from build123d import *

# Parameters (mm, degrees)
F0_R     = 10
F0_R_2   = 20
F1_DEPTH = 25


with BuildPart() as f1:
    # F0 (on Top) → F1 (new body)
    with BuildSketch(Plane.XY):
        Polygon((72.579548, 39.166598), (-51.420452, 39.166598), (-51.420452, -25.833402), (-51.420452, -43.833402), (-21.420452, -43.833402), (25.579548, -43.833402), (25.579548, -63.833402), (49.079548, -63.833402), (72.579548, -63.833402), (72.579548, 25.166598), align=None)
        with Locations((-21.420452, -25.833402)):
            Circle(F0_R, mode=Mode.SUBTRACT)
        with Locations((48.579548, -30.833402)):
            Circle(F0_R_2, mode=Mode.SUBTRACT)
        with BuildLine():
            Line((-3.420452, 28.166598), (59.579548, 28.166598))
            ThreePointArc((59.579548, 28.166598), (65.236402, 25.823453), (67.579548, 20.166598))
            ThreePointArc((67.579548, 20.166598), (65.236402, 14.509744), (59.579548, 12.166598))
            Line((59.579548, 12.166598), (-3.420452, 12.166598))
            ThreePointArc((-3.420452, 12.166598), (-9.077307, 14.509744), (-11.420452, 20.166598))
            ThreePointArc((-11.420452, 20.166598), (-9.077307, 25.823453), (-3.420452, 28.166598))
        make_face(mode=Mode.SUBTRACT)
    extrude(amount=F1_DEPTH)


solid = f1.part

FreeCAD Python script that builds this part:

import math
import FreeCAD as App
import Part
import Sketcher
from FreeCAD import Vector


def add_polygon(sketch, points):
    """Adds a closed chain of lines whose ends are joined by coincident constraints."""
    first, n = sketch.GeometryCount, len(points)
    for a, b in zip(points, points[1:] + points[:1]):
        sketch.addGeometry(Part.LineSegment(App.Vector(*a, 0), App.Vector(*b, 0)), False)
    for i in range(n):
        sketch.addConstraint(Sketcher.Constraint("Coincident", first + i, 2, first + (i + 1) % n, 1))

doc = App.newDocument("Part")
body = doc.addObject("PartDesign::Body", "Body")

# Sketch on XY plane
sketch1 = doc.addObject("Sketcher::SketchObject", "Sketch")
body.addObject(sketch1)
sketch1.AttachmentSupport = (doc.XY_Plane, [""])
sketch1.MapMode = "FlatFace"
add_polygon(sketch1, [(73, 39), (-51, 39), (-51, -44), (26, -44), (26, -64), (73, -64)])  # lines 0-5
sketch1.addGeometry(Part.Circle(Vector(-21, -26, 0), Vector(0, 0, 1), 10), False)  # 6
sketch1.addGeometry(Part.Circle(Vector(49, -31, 0), Vector(0, 0, 1), 20), False)  # 7
sketch1.addGeometry(Part.ArcOfCircle(Part.Circle(Vector(-3, 20, 0), Vector(0, 0, 1), 8), math.radians(90), math.radians(180)), False)  # 8
sketch1.addGeometry(Part.LineSegment(Vector(-3, 28, 0), Vector(60, 28, 0)), False)  # 9
sketch1.addGeometry(Part.ArcOfCircle(Part.Circle(Vector(60, 20, 0), Vector(0, 0, 1), 8), math.radians(0), math.radians(90)), False)  # 10
sketch1.addGeometry(Part.ArcOfCircle(Part.Circle(Vector(60, 20, 0), Vector(0, 0, 1), 8), math.radians(-90), math.radians(0)), False)  # 11
sketch1.addGeometry(Part.LineSegment(Vector(60, 12, 0), Vector(-3, 12, 0)), False)  # 12
sketch1.addGeometry(Part.ArcOfCircle(Part.Circle(Vector(-3, 20, 0), Vector(0, 0, 1), 8), math.radians(180), math.radians(270)), False)  # 13
sketch1.addConstraint(Sketcher.Constraint("Tangent", 8, 1, 9, 1))
sketch1.addConstraint(Sketcher.Constraint("Tangent", 9, 2, 10, 2))
sketch1.addConstraint(Sketcher.Constraint("Tangent", 10, 1, 11, 2))
sketch1.addConstraint(Sketcher.Constraint("Tangent", 11, 1, 12, 1))
sketch1.addConstraint(Sketcher.Constraint("Tangent", 12, 2, 13, 2))
sketch1.addConstraint(Sketcher.Constraint("Tangent", 13, 1, 8, 2))
sketch1.addConstraint(Sketcher.Constraint("Horizontal", 0))
sketch1.addConstraint(Sketcher.Constraint("Vertical", 1))
sketch1.addConstraint(Sketcher.Constraint("Horizontal", 2))
sketch1.addConstraint(Sketcher.Constraint("Vertical", 3))
sketch1.addConstraint(Sketcher.Constraint("Horizontal", 4))
sketch1.addConstraint(Sketcher.Constraint("Vertical", 5))
sketch1.addConstraint(Sketcher.Constraint("Horizontal", 9))
sketch1.addConstraint(Sketcher.Constraint("Horizontal", 12))
sketch1.addConstraint(Sketcher.Constraint("Equal", 8, 10))
sketch1.addConstraint(Sketcher.Constraint("Equal", 10, 11))
sketch1.addConstraint(Sketcher.Constraint("Horizontal", 13, 3, 10, 1))
sketch1.addConstraint(Sketcher.Constraint("Horizontal", 10, 1, 13, 1))
sketch1.addConstraint(Sketcher.Constraint("Diameter", 6, 20.0))
sketch1.addConstraint(Sketcher.Constraint("Diameter", 7, 40.0))
sketch1.addConstraint(Sketcher.Constraint("Radius", 10, 7.999999))
sketch1.addConstraint(Sketcher.Constraint("DistanceX", 0, 2, 0, 1, 124.0))
sketch1.addConstraint(Sketcher.Constraint("DistanceX", 2, 1, 2, 2, 77.0))
sketch1.addConstraint(Sketcher.Constraint("DistanceX", 9, 1, 9, 2, 63.0))
sketch1.addConstraint(Sketcher.Constraint("DistanceY", 1, 2, 1, 1, 83.0))
sketch1.addConstraint(Sketcher.Constraint("DistanceY", 3, 2, 3, 1, 20.0))
sketch1.addConstraint(Sketcher.Constraint("DistanceX", 6, 3, 7, 3, 70.0))
sketch1.addConstraint(Sketcher.Constraint("DistanceY", 7, 3, 6, 3, 5.0))
sketch1.addConstraint(Sketcher.Constraint("DistanceX", 7, 3, 10, 3, 11.000001))
sketch1.addConstraint(Sketcher.Constraint("DistanceY", 7, 3, 10, 3, 51.000001))
sketch1.addConstraint(Sketcher.Constraint("DistanceX", 0, 2, 13, 3, 47.999999))
sketch1.addConstraint(Sketcher.Constraint("DistanceY", 13, 3, 0, 2, 19.000001))
sketch1.addConstraint(Sketcher.Constraint("DistanceY", 6, 3, -1, 1, 25.833402))
sketch1.addConstraint(Sketcher.Constraint("DistanceX", -1, 1, 7, 3, 48.579548))
pad1 = doc.addObject("PartDesign::Pad", "Pad")
body.addObject(pad1)
pad1.Profile = sketch1
pad1.Length = 25

doc.recompute()
